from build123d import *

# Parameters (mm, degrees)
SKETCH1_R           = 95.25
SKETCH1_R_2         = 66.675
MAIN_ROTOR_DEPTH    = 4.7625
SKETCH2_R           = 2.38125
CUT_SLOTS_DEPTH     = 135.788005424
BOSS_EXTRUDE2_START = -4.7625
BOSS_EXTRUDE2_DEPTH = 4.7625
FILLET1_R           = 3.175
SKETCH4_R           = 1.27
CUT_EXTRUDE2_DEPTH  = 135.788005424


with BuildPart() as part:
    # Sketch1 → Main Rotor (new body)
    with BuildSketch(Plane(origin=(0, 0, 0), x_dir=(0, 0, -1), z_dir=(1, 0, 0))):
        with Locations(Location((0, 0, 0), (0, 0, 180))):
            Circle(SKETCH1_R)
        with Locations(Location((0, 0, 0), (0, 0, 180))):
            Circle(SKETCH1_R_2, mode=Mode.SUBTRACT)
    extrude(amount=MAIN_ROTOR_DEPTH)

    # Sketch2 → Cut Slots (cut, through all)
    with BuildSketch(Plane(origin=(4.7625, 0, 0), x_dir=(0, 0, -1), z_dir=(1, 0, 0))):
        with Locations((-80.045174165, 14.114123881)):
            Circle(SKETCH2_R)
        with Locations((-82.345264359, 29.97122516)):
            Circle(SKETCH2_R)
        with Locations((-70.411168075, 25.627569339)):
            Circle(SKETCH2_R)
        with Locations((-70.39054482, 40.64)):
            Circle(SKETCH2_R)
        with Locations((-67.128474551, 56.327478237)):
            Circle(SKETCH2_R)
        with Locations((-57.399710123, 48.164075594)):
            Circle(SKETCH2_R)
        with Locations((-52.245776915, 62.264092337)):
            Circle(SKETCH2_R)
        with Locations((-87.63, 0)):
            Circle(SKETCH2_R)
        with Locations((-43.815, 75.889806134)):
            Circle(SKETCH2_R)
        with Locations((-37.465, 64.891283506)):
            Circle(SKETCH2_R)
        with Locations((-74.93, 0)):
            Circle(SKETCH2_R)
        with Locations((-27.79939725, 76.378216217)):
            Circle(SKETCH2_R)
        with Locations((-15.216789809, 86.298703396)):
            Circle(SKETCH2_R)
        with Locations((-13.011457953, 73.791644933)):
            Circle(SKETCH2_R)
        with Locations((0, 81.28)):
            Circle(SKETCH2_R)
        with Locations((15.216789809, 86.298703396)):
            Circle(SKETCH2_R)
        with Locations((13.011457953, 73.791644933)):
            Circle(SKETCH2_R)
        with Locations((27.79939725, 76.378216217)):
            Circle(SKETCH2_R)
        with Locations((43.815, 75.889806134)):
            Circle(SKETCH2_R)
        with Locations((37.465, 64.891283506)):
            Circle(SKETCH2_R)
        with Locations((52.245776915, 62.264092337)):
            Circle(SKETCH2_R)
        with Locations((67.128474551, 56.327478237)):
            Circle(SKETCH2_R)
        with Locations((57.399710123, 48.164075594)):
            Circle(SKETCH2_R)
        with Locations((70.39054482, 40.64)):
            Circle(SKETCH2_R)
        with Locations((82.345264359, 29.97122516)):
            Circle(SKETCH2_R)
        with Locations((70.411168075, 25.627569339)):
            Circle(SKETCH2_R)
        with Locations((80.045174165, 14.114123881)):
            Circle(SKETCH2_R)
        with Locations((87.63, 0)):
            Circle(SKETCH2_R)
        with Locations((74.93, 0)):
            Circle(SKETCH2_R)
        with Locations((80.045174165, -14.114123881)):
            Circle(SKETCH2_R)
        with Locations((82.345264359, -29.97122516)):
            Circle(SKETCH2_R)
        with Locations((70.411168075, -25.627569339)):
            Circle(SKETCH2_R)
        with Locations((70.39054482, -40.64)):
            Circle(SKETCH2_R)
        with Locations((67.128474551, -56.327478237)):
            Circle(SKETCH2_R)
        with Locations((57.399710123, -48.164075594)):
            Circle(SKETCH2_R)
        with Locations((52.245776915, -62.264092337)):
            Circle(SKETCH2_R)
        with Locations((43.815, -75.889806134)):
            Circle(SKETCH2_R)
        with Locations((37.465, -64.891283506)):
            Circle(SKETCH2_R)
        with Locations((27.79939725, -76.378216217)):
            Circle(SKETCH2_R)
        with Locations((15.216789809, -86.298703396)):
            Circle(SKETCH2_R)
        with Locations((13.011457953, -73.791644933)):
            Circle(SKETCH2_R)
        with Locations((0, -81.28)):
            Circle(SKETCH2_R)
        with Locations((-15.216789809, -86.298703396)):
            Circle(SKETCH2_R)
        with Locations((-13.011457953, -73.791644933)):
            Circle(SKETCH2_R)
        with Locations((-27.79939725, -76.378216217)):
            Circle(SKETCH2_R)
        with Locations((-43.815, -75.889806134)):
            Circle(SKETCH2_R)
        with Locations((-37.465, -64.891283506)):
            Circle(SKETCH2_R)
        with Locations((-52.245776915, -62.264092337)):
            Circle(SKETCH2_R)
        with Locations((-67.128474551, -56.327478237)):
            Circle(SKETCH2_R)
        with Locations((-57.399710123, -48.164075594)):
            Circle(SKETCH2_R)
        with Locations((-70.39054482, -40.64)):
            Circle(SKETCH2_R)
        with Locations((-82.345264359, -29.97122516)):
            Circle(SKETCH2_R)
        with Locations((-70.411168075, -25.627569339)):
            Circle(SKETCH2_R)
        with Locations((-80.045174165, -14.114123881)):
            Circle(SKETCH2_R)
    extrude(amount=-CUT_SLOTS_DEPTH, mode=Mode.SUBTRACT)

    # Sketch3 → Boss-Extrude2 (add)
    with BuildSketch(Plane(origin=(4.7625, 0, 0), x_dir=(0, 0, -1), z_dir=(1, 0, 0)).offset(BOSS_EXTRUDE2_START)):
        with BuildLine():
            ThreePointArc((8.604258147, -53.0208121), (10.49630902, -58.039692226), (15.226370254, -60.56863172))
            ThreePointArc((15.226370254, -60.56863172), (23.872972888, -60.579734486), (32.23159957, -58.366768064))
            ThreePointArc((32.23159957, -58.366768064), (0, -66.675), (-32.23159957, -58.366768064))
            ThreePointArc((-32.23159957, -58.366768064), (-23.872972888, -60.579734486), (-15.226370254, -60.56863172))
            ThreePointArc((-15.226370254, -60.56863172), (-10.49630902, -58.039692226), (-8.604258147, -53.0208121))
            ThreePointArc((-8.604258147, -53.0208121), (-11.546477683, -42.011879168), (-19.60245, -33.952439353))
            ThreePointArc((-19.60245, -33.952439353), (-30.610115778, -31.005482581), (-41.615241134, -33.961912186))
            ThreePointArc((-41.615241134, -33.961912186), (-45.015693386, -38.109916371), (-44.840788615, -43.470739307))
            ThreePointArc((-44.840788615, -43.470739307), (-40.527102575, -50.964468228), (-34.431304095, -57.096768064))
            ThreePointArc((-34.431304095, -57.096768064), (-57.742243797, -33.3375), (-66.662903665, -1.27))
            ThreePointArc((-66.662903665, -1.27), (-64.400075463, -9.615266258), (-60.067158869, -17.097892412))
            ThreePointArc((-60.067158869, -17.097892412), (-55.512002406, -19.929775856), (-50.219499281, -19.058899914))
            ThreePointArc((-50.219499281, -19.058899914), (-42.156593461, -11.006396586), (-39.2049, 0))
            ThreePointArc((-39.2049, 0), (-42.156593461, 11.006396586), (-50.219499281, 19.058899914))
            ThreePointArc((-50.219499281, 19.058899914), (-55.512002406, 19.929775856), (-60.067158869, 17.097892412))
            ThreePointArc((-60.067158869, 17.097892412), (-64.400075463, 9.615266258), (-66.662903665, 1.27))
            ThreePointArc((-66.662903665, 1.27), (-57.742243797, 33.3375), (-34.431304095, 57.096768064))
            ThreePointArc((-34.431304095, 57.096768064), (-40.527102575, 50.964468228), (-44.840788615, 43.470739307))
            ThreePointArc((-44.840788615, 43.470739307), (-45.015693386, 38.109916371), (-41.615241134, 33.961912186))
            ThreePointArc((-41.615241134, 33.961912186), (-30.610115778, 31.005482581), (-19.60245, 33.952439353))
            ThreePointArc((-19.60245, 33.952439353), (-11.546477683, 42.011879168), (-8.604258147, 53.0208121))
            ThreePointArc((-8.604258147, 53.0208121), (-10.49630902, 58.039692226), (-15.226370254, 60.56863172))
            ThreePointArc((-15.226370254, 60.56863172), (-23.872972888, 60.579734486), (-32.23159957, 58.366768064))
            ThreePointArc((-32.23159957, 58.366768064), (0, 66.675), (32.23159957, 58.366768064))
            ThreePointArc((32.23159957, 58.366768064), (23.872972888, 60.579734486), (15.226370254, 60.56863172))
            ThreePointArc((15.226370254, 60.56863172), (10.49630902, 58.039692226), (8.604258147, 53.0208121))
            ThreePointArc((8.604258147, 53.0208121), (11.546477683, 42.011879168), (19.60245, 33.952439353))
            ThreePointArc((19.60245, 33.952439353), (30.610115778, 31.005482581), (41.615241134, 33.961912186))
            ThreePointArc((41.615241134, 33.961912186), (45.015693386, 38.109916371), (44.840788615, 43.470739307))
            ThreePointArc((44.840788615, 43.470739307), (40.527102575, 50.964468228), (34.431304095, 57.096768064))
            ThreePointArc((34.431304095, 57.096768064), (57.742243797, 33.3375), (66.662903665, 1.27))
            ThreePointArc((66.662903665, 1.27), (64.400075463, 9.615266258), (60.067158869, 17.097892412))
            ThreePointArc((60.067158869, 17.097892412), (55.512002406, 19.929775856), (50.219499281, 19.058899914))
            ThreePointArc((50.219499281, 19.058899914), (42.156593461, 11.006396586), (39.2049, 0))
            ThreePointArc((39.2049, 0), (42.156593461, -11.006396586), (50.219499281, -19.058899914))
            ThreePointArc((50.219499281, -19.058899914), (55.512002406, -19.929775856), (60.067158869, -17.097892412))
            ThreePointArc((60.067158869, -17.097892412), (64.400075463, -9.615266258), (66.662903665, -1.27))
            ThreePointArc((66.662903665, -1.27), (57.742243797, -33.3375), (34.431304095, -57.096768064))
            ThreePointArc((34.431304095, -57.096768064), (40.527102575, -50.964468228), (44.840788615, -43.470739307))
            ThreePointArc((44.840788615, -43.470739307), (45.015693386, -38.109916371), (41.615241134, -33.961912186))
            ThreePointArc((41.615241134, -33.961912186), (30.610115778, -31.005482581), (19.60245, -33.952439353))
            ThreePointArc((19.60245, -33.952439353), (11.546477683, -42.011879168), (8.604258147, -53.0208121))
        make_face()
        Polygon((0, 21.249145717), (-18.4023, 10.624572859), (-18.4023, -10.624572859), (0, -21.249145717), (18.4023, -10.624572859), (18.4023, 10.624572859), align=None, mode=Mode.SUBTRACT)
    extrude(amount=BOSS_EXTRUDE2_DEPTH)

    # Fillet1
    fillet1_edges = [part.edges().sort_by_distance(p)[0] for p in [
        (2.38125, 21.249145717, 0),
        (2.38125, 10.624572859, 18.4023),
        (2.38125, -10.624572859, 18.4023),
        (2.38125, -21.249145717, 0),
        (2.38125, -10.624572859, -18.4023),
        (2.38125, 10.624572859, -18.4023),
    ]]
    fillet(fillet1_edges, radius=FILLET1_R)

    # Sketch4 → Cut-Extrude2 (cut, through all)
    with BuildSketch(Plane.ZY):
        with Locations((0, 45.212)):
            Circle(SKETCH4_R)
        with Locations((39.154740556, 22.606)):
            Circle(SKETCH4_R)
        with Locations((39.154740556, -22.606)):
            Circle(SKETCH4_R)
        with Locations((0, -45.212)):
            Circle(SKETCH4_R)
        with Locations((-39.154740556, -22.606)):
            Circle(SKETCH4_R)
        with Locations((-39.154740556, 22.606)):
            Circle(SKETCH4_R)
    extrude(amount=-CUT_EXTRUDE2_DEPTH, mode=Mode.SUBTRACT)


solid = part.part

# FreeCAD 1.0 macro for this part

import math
import FreeCAD as App
import Part
import Sketcher
Q = App.Units.Quantity


def edges_at(feature, points):
    """Names of the edges that pass closest to the given points."""
    edges = feature.Shape.Edges
    near = lambda p: min(range(len(edges)), key=lambda i: edges[i].distToShape(Part.Vertex(*p))[0])
    return sorted({f"Edge{near(p) + 1}" for p in points})


def add_polygon(sketch, points):
    """Adds a closed chain of lines whose ends are joined by coincident constraints."""
    first, n = sketch.GeometryCount, len(points)
    for a, b in zip(points, points[1:] + points[:1]):
        sketch.addGeometry(Part.LineSegment(App.Vector(*a, 0), App.Vector(*b, 0)), False)
    for i in range(n):
        sketch.addConstraint(Sketcher.Constraint("Coincident", first + i, 2, first + (i + 1) % n, 1))

doc = App.newDocument("Part")
body = doc.addObject("PartDesign::Body", "Body")

sketch1 = doc.addObject("Sketcher::SketchObject", "Sketch")
body.addObject(sketch1)
sketch1.AttachmentSupport = (doc.YZ_Plane, [""])
sketch1.MapMode = "FlatFace"
sketch1.addGeometry([
    Part.Circle(App.Vector(0, 0, 0), App.Vector(0, 0, 1), 95),
    Part.Circle(App.Vector(0, 0, 0), App.Vector(0, 0, 1), 67),
], False)
sketch1.addConstraint([
    Sketcher.Constraint("Coincident", 0, 3, -1, 1),
    Sketcher.Constraint("Coincident", 1, 3, -1, 1),
    Sketcher.Constraint("Diameter", 0, Q("7.5 in")),
    Sketcher.Constraint("Diameter", 1, Q("5.25 in")),
])
pad1 = doc.addObject("PartDesign::Pad", "Pad")
body.addObject(pad1)
pad1.Profile = sketch1
pad1.Length = Q("0.1875 in")

sketch2 = doc.addObject("Sketcher::SketchObject", "Sketch001")
body.addObject(sketch2)
sketch2.AttachmentSupport = (doc.YZ_Plane, [""])
sketch2.MapMode = "FlatFace"
sketch2.AttachmentOffset = App.Placement(App.Vector(0, 0, 0.1875 * 25.4), App.Rotation())
sketch2.addGeometry([
    Part.Circle(App.Vector(14.1, 80, 0), App.Vector(0, 0, 1), 2.4),
    Part.Circle(App.Vector(30, 82.3, 0), App.Vector(0, 0, 1), 2.4),
    Part.Circle(App.Vector(25.6, 70.4, 0), App.Vector(0, 0, 1), 2.4),
    Part.Circle(App.Vector(40.6, 70.4, 0), App.Vector(0, 0, 1), 2.4),
    Part.Circle(App.Vector(56.3, 67.1, 0), App.Vector(0, 0, 1), 2.4),
    Part.Circle(App.Vector(48.2, 57.4, 0), App.Vector(0, 0, 1), 2.4),
    Part.Circle(App.Vector(62.3, 52.2, 0), App.Vector(0, 0, 1), 2.4),
    Part.Circle(App.Vector(0, 87.6, 0), App.Vector(0, 0, 1), 2.4),
    Part.Circle(App.Vector(75.9, 43.8, 0), App.Vector(0, 0, 1), 2.4),
    Part.Circle(App.Vector(64.9, 37.5, 0), App.Vector(0, 0, 1), 2.4),
    Part.Circle(App.Vector(0, 74.9, 0), App.Vector(0, 0, 1), 2.4),
    Part.Circle(App.Vector(76.4, 27.8, 0), App.Vector(0, 0, 1), 2.4),
    Part.Circle(App.Vector(86.3, 15.2, 0), App.Vector(0, 0, 1), 2.4),
    Part.Circle(App.Vector(73.8, 13, 0), App.Vector(0, 0, 1), 2.4),
    Part.Circle(App.Vector(81.3, 0, 0), App.Vector(0, 0, 1), 2.4),
    Part.Circle(App.Vector(86.3, -15.2, 0), App.Vector(0, 0, 1), 2.4),
    Part.Circle(App.Vector(73.8, -13, 0), App.Vector(0, 0, 1), 2.4),
    Part.Circle(App.Vector(76.4, -27.8, 0), App.Vector(0, 0, 1), 2.4),
    Part.Circle(App.Vector(75.9, -43.8, 0), App.Vector(0, 0, 1), 2.4),
    Part.Circle(App.Vector(64.9, -37.5, 0), App.Vector(0, 0, 1), 2.4),
    Part.Circle(App.Vector(62.3, -52.2, 0), App.Vector(0, 0, 1), 2.4),
    Part.Circle(App.Vector(56.3, -67.1, 0), App.Vector(0, 0, 1), 2.4),
    Part.Circle(App.Vector(48.2, -57.4, 0), App.Vector(0, 0, 1), 2.4),
    Part.Circle(App.Vector(40.6, -70.4, 0), App.Vector(0, 0, 1), 2.4),
    Part.Circle(App.Vector(30, -82.3, 0), App.Vector(0, 0, 1), 2.4),
    Part.Circle(App.Vector(25.6, -70.4, 0), App.Vector(0, 0, 1), 2.4),
    Part.Circle(App.Vector(14.1, -80, 0), App.Vector(0, 0, 1), 2.4),
    Part.Circle(App.Vector(0, -87.6, 0), App.Vector(0, 0, 1), 2.4),
    Part.Circle(App.Vector(0, -74.9, 0), App.Vector(0, 0, 1), 2.4),
    Part.Circle(App.Vector(-14.1, -80, 0), App.Vector(0, 0, 1), 2.4),
    Part.Circle(App.Vector(-30, -82.3, 0), App.Vector(0, 0, 1), 2.4),
    Part.Circle(App.Vector(-25.6, -70.4, 0), App.Vector(0, 0, 1), 2.4),
    Part.Circle(App.Vector(-40.6, -70.4, 0), App.Vector(0, 0, 1), 2.4),
    Part.Circle(App.Vector(-56.3, -67.1, 0), App.Vector(0, 0, 1), 2.4),
    Part.Circle(App.Vector(-48.2, -57.4, 0), App.Vector(0, 0, 1), 2.4),
    Part.Circle(App.Vector(-62.3, -52.2, 0), App.Vector(0, 0, 1), 2.4),
    Part.Circle(App.Vector(-75.9, -43.8, 0), App.Vector(0, 0, 1), 2.4),
    Part.Circle(App.Vector(-64.9, -37.5, 0), App.Vector(0, 0, 1), 2.4),
    Part.Circle(App.Vector(-76.4, -27.8, 0), App.Vector(0, 0, 1), 2.4),
    Part.Circle(App.Vector(-86.3, -15.2, 0), App.Vector(0, 0, 1), 2.4),
    Part.Circle(App.Vector(-73.8, -13, 0), App.Vector(0, 0, 1), 2.4),
    Part.Circle(App.Vector(-81.3, 0, 0), App.Vector(0, 0, 1), 2.4),
    Part.Circle(App.Vector(-86.3, 15.2, 0), App.Vector(0, 0, 1), 2.4),
    Part.Circle(App.Vector(-73.8, 13, 0), App.Vector(0, 0, 1), 2.4),
    Part.Circle(App.Vector(-76.4, 27.8, 0), App.Vector(0, 0, 1), 2.4),
    Part.Circle(App.Vector(-75.9, 43.8, 0), App.Vector(0, 0, 1), 2.4),
    Part.Circle(App.Vector(-64.9, 37.5, 0), App.Vector(0, 0, 1), 2.4),
    Part.Circle(App.Vector(-62.3, 52.2, 0), App.Vector(0, 0, 1), 2.4),
    Part.Circle(App.Vector(-56.3, 67.1, 0), App.Vector(0, 0, 1), 2.4),
    Part.Circle(App.Vector(-48.2, 57.4, 0), App.Vector(0, 0, 1), 2.4),
    Part.Circle(App.Vector(-40.6, 70.4, 0), App.Vector(0, 0, 1), 2.4),
    Part.Circle(App.Vector(-30, 82.3, 0), App.Vector(0, 0, 1), 2.4),
    Part.Circle(App.Vector(-25.6, 70.4, 0), App.Vector(0, 0, 1), 2.4),
    Part.Circle(App.Vector(-14.1, 80, 0), App.Vector(0, 0, 1), 2.4),
], False)
sketch2.addConstraint([
    Sketcher.Constraint("Equal", 0, 1),
    Sketcher.Constraint("Equal", 1, 2),
    Sketcher.Constraint("Equal", 2, 3),
    Sketcher.Constraint("Equal", 3, 4),
    Sketcher.Constraint("Equal", 4, 5),
    Sketcher.Constraint("Equal", 5, 6),
    Sketcher.Constraint("Equal", 6, 7),
    Sketcher.Constraint("Equal", 7, 8),
    Sketcher.Constraint("Equal", 8, 9),
    Sketcher.Constraint("Equal", 9, 10),
    Sketcher.Constraint("Equal", 10, 11),
    Sketcher.Constraint("Equal", 11, 12),
    Sketcher.Constraint("Equal", 12, 13),
    Sketcher.Constraint("Equal", 13, 14),
    Sketcher.Constraint("Equal", 14, 15),
    Sketcher.Constraint("Equal", 15, 16),
    Sketcher.Constraint("Equal", 16, 17),
    Sketcher.Constraint("Equal", 17, 18),
    Sketcher.Constraint("Equal", 18, 19),
    Sketcher.Constraint("Equal", 19, 20),
    Sketcher.Constraint("Equal", 20, 21),
    Sketcher.Constraint("Equal", 21, 22),
    Sketcher.Constraint("Equal", 22, 23),
    Sketcher.Constraint("Equal", 23, 24),
    Sketcher.Constraint("Equal", 24, 25),
    Sketcher.Constraint("Equal", 25, 26),
    Sketcher.Constraint("Equal", 26, 27),
    Sketcher.Constraint("Equal", 27, 28),
    Sketcher.Constraint("Equal", 28, 29),
    Sketcher.Constraint("Equal", 29, 30),
    Sketcher.Constraint("Equal", 30, 31),
    Sketcher.Constraint("Equal", 31, 32),
    Sketcher.Constraint("Equal", 32, 33),
    Sketcher.Constraint("Equal", 33, 34),
    Sketcher.Constraint("Equal", 34, 35),
    Sketcher.Constraint("Equal", 35, 36),
    Sketcher.Constraint("Equal", 36, 37),
    Sketcher.Constraint("Equal", 37, 38),
    Sketcher.Constraint("Equal", 38, 39),
    Sketcher.Constraint("Equal", 39, 40),
    Sketcher.Constraint("Equal", 40, 41),
    Sketcher.Constraint("Equal", 41, 42),
    Sketcher.Constraint("Equal", 42, 43),
    Sketcher.Constraint("Equal", 43, 44),
    Sketcher.Constraint("Equal", 44, 45),
    Sketcher.Constraint("Equal", 45, 46),
    Sketcher.Constraint("Equal", 46, 47),
    Sketcher.Constraint("Equal", 47, 48),
    Sketcher.Constraint("Equal", 48, 49),
    Sketcher.Constraint("Equal", 49, 50),
    Sketcher.Constraint("Equal", 50, 51),
    Sketcher.Constraint("Equal", 51, 52),
    Sketcher.Constraint("Equal", 52, 53),
    Sketcher.Constraint("Symmetric", 7, 3, 27, 3, -1, 1),
    Sketcher.Constraint("Symmetric", 10, 3, 28, 3, -1, 1),
    Sketcher.Constraint("Symmetric", 0, 3, 29, 3, -1, 1),
    Sketcher.Constraint("Symmetric", 1, 3, 30, 3, -1, 1),
    Sketcher.Constraint("Symmetric", 2, 3, 31, 3, -1, 1),
    Sketcher.Constraint("Symmetric", 3, 3, 32, 3, -1, 1),
    Sketcher.Constraint("Symmetric", 4, 3, 33, 3, -1, 1),
    Sketcher.Constraint("Symmetric", 5, 3, 34, 3, -1, 1),
    Sketcher.Constraint("Symmetric", 6, 3, 35, 3, -1, 1),
    Sketcher.Constraint("Symmetric", 8, 3, 36, 3, -1, 1),
    Sketcher.Constraint("Symmetric", 9, 3, 37, 3, -1, 1),
    Sketcher.Constraint("Symmetric", 11, 3, 38, 3, -1, 1),
    Sketcher.Constraint("Symmetric", 12, 3, 39, 3, -1, 1),
    Sketcher.Constraint("Symmetric", 13, 3, 40, 3, -1, 1),
    Sketcher.Constraint("Symmetric", 14, 3, 41, 3, -1, 1),
    Sketcher.Constraint("Symmetric", 15, 3, 42, 3, -1, 1),
    Sketcher.Constraint("Symmetric", 16, 3, 43, 3, -1, 1),
    Sketcher.Constraint("Symmetric", 17, 3, 44, 3, -1, 1),
    Sketcher.Constraint("Symmetric", 18, 3, 45, 3, -1, 1),
    Sketcher.Constraint("Symmetric", 19, 3, 46, 3, -1, 1),
    Sketcher.Constraint("Symmetric", 20, 3, 47, 3, -1, 1),
    Sketcher.Constraint("Symmetric", 21, 3, 48, 3, -1, 1),
    Sketcher.Constraint("Symmetric", 22, 3, 49, 3, -1, 1),
    Sketcher.Constraint("Symmetric", 23, 3, 50, 3, -1, 1),
    Sketcher.Constraint("Symmetric", 24, 3, 51, 3, -1, 1),
    Sketcher.Constraint("Symmetric", 25, 3, 52, 3, -1, 1),
    Sketcher.Constraint("Symmetric", 26, 3, 53, 3, -1, 1),
    Sketcher.Constraint("Symmetric", 26, 3, 29, 3, -2),
    Sketcher.Constraint("Symmetric", 24, 3, 30, 3, -2),
    Sketcher.Constraint("Symmetric", 25, 3, 31, 3, -2),
    Sketcher.Constraint("Symmetric", 23, 3, 32, 3, -2),
    Sketcher.Constraint("Symmetric", 21, 3, 33, 3, -2),
    Sketcher.Constraint("Symmetric", 22, 3, 34, 3, -2),
    Sketcher.Constraint("Symmetric", 20, 3, 35, 3, -2),
    Sketcher.Constraint("Symmetric", 18, 3, 36, 3, -2),
    Sketcher.Constraint("Symmetric", 19, 3, 37, 3, -2),
    Sketcher.Constraint("Symmetric", 17, 3, 38, 3, -2),
    Sketcher.Constraint("Symmetric", 15, 3, 39, 3, -2),
    Sketcher.Constraint("Symmetric", 16, 3, 40, 3, -2),
    Sketcher.Constraint("PointOnObject", 7, 3, -2),
    Sketcher.Constraint("PointOnObject", 10, 3, -2),
    Sketcher.Constraint("PointOnObject", 14, 3, -1),
    Sketcher.Constraint("Diameter", 0, Q("0.1875 in")),
    Sketcher.Constraint("DistanceX", -1, 1, 3, 3, Q("1.6 in")),
    Sketcher.Constraint("DistanceX", -1, 1, 14, 3, Q("3.2 in")),
    Sketcher.Constraint("DistanceY", 10, 3, 7, 3, Q("0.5 in")),
    Sketcher.Constraint("DistanceY", -1, 1, 7, 3, Q("3.45 in")),
    Sketcher.Constraint("DistanceY", 9, 3, 8, 3, Q("0.25 in")),
    Sketcher.Constraint("DistanceY", -1, 1, 8, 3, Q("1.725 in")),
    Sketcher.Constraint("DistanceX", 0, 3, 1, 3, Q("15.857101 mm")),
    Sketcher.Constraint("DistanceY", 4, 3, 0, 3, Q("12.9167 mm")),
    Sketcher.Constraint("DistanceX", -1, 1, 2, 3, Q("25.627569 mm")),
    Sketcher.Constraint("DistanceY", -1, 1, 2, 3, Q("70.411168 mm")),
    Sketcher.Constraint("DistanceX", -1, 1, 4, 3, Q("56.327478 mm")),
    Sketcher.Constraint("DistanceY", -1, 1, 5, 3, Q("57.39971 mm")),
    Sketcher.Constraint("DistanceY", -1, 1, 12, 3, Q("15.21679 mm")),
    Sketcher.Constraint("DistanceY", 0, 3, 1, 3, Q("2.30009 mm")),
    Sketcher.Constraint("DistanceY", 3, 3, 1, 3, Q("11.95472 mm")),
    Sketcher.Constraint("DistanceX", 1, 3, 5, 3, Q("18.19285 mm")),
    Sketcher.Constraint("DistanceY", 6, 3, 2, 3, Q("18.165391 mm")),
    Sketcher.Constraint("DistanceX", 5, 3, 8, 3, Q("27.725731 mm")),
    Sketcher.Constraint("DistanceX", 6, 3, 9, 3, Q("2.627191 mm")),
    Sketcher.Constraint("DistanceX", 8, 3, 11, 3, Q("0.48841 mm")),
    Sketcher.Constraint("DistanceY", 11, 3, 6, 3, Q("24.44638 mm")),
    Sketcher.Constraint("DistanceX", 9, 3, 12, 3, Q("21.40742 mm")),
    Sketcher.Constraint("DistanceX", 13, 3, 12, 3, Q("12.507058 mm")),
    Sketcher.Constraint("DistanceY", 13, 3, 12, 3, Q("2.205332 mm")),
    Sketcher.Constraint("DistanceX", 13, 3, 11, 3, Q("2.586571 mm")),
    Sketcher.Constraint("DistanceX", 29, 3, 24, 3, Q("44.085349 mm")),
    Sketcher.Constraint("DistanceY", -1, 1, 0, 3, Q("80.045174 mm")),
])
pocket1 = doc.addObject("PartDesign::Pocket", "Pocket")
body.addObject(pocket1)
pocket1.Profile = sketch2
pocket1.Type = "ThroughAll"

sketch3 = doc.addObject("Sketcher::SketchObject", "Sketch002")
body.addObject(sketch3)
sketch3.AttachmentSupport = (doc.YZ_Plane, [""])
sketch3.MapMode = "FlatFace"
sketch3.addGeometry(Part.ArcOfCircle(Part.Circle(App.Vector(-53, -16, 0), App.Vector(0, 0, 1), 8), math.radians(90), math.radians(172)), False)
sketch3.addGeometry(Part.ArcOfCircle(Part.Circle(App.Vector(-53, -31, 0), App.Vector(0, 0, 1), 22), math.radians(30), math.radians(90)), False)
sketch3.addGeometry(Part.ArcOfCircle(Part.Circle(App.Vector(-53, -31, 0), App.Vector(0, 0, 1), 22), math.radians(-30), math.radians(30)), False)
sketch3.addGeometry(Part.ArcOfCircle(Part.Circle(App.Vector(-41, -38, 0), App.Vector(0, 0, 1), 8), math.radians(-112), math.radians(-30)), False)
sketch3.addGeometry(Part.ArcOfCircle(Part.Circle(App.Vector(-31, -14, 0), App.Vector(0, 0, 1), 33), math.radians(-142), math.radians(-112)), False)
sketch3.addGeometry(Part.ArcOfCircle(Part.Circle(App.Vector(0, 0, 0), App.Vector(0, 0, 1), 67), math.radians(-149), math.radians(-91)), False)
sketch3.addGeometry(Part.ArcOfCircle(Part.Circle(App.Vector(3, -34, 0), App.Vector(0, 0, 1), 33), math.radians(-128), math.radians(-98)), False)
sketch3.addGeometry(Part.ArcOfCircle(Part.Circle(App.Vector(-12, -54, 0), App.Vector(0, 0, 1), 8), math.radians(150), math.radians(232)), False)
sketch3.addGeometry(Part.ArcOfCircle(Part.Circle(App.Vector(0, -61, 0), App.Vector(0, 0, 1), 22), math.radians(90), math.radians(150)), False)
sketch3.addGeometry(Part.ArcOfCircle(Part.Circle(App.Vector(0, -61, 0), App.Vector(0, 0, 1), 22), math.radians(30), math.radians(90)), False)
sketch3.addGeometry(Part.ArcOfCircle(Part.Circle(App.Vector(12, -54, 0), App.Vector(0, 0, 1), 8), math.radians(-52), math.radians(30)), False)
sketch3.addGeometry(Part.ArcOfCircle(Part.Circle(App.Vector(-3, -34, 0), App.Vector(0, 0, 1), 33), math.radians(-82), math.radians(-52)), False)
sketch3.addGeometry(Part.ArcOfCircle(Part.Circle(App.Vector(0, 0, 0), App.Vector(0, 0, 1), 67), math.radians(-89), math.radians(-31)), False)
sketch3.addGeometry(Part.ArcOfCircle(Part.Circle(App.Vector(31, -14, 0), App.Vector(0, 0, 1), 33), math.radians(-68), math.radians(-38)), False)
sketch3.addGeometry(Part.ArcOfCircle(Part.Circle(App.Vector(41, -38, 0), App.Vector(0, 0, 1), 8), math.radians(-150), math.radians(-68)), False)
sketch3.addGeometry(Part.ArcOfCircle(Part.Circle(App.Vector(53, -31, 0), App.Vector(0, 0, 1), 22), math.radians(150), math.radians(210)), False)
sketch3.addGeometry(Part.ArcOfCircle(Part.Circle(App.Vector(53, -31, 0), App.Vector(0, 0, 1), 22), math.radians(90), math.radians(150)), False)
sketch3.addGeometry(Part.ArcOfCircle(Part.Circle(App.Vector(53, -16, 0), App.Vector(0, 0, 1), 8), math.radians(8), math.radians(90)), False)
sketch3.addGeometry(Part.ArcOfCircle(Part.Circle(App.Vector(28, -20, 0), App.Vector(0, 0, 1), 33), math.radians(-22), math.radians(8)), False)
sketch3.addGeometry(Part.ArcOfCircle(Part.Circle(App.Vector(0, 0, 0), App.Vector(0, 0, 1), 67), math.radians(-29), math.radians(29)), False)
sketch3.addGeometry(Part.ArcOfCircle(Part.Circle(App.Vector(28, 20, 0), App.Vector(0, 0, 1), 33), math.radians(-8), math.radians(22)), False)
sketch3.addGeometry(Part.ArcOfCircle(Part.Circle(App.Vector(53, 16, 0), App.Vector(0, 0, 1), 8), math.radians(-90), math.radians(-8)), False)
sketch3.addGeometry(Part.ArcOfCircle(Part.Circle(App.Vector(53, 31, 0), App.Vector(0, 0, 1), 22), math.radians(-150), math.radians(-90)), False)
sketch3.addGeometry(Part.ArcOfCircle(Part.Circle(App.Vector(53, 31, 0), App.Vector(0, 0, 1), 22), math.radians(150), math.radians(210)), False)
sketch3.addGeometry(Part.ArcOfCircle(Part.Circle(App.Vector(41, 38, 0), App.Vector(0, 0, 1), 8), math.radians(68), math.radians(150)), False)
sketch3.addGeometry(Part.ArcOfCircle(Part.Circle(App.Vector(31, 14, 0), App.Vector(0, 0, 1), 33), math.radians(38), math.radians(68)), False)
sketch3.addGeometry(Part.ArcOfCircle(Part.Circle(App.Vector(0, 0, 0), App.Vector(0, 0, 1), 67), math.radians(31), math.radians(89)), False)
sketch3.addGeometry(Part.ArcOfCircle(Part.Circle(App.Vector(-3, 34, 0), App.Vector(0, 0, 1), 33), math.radians(52), math.radians(82)), False)
sketch3.addGeometry(Part.ArcOfCircle(Part.Circle(App.Vector(12, 54, 0), App.Vector(0, 0, 1), 8), math.radians(-30), math.radians(52)), False)
sketch3.addGeometry(Part.ArcOfCircle(Part.Circle(App.Vector(0, 61, 0), App.Vector(0, 0, 1), 22), math.radians(-90), math.radians(-30)), False)
sketch3.addGeometry(Part.ArcOfCircle(Part.Circle(App.Vector(0, 61, 0), App.Vector(0, 0, 1), 22), math.radians(-150), math.radians(-90)), False)
sketch3.addGeometry(Part.ArcOfCircle(Part.Circle(App.Vector(-12, 54, 0), App.Vector(0, 0, 1), 8), math.radians(128), math.radians(210)), False)
sketch3.addGeometry(Part.ArcOfCircle(Part.Circle(App.Vector(3, 34, 0), App.Vector(0, 0, 1), 33), math.radians(98), math.radians(128)), False)
sketch3.addGeometry(Part.ArcOfCircle(Part.Circle(App.Vector(0, 0, 0), App.Vector(0, 0, 1), 67), math.radians(91), math.radians(149)), False)
sketch3.addGeometry(Part.ArcOfCircle(Part.Circle(App.Vector(-31, 14, 0), App.Vector(0, 0, 1), 33), math.radians(112), math.radians(142)), False)
sketch3.addGeometry(Part.ArcOfCircle(Part.Circle(App.Vector(-41, 38, 0), App.Vector(0, 0, 1), 8), math.radians(30), math.radians(112)), False)
sketch3.addGeometry(Part.ArcOfCircle(Part.Circle(App.Vector(-53, 31, 0), App.Vector(0, 0, 1), 22), math.radians(-30), math.radians(30)), False)
sketch3.addGeometry(Part.ArcOfCircle(Part.Circle(App.Vector(-53, 31, 0), App.Vector(0, 0, 1), 22), math.radians(-90), math.radians(-30)), False)
sketch3.addGeometry(Part.ArcOfCircle(Part.Circle(App.Vector(-53, 16, 0), App.Vector(0, 0, 1), 8), math.radians(-172), math.radians(-90)), False)
sketch3.addGeometry(Part.ArcOfCircle(Part.Circle(App.Vector(-28, 20, 0), App.Vector(0, 0, 1), 33), math.radians(158), math.radians(188)), False)
sketch3.addGeometry(Part.ArcOfCircle(Part.Circle(App.Vector(0, 0, 0), App.Vector(0, 0, 1), 67), math.radians(151), math.radians(209)), False)
sketch3.addGeometry(Part.ArcOfCircle(Part.Circle(App.Vector(-28, -20, 0), App.Vector(0, 0, 1), 33), math.radians(172), math.radians(202)), False)
add_polygon(sketch3, [(21, 0), (11, -18), (-11, -18), (-21, 0), (-11, 18), (11, 18)])
sketch3.addConstraint([
    Sketcher.Constraint("Tangent", 0, 1, 1, 2),
    Sketcher.Constraint("Tangent", 1, 1, 2, 2),
    Sketcher.Constraint("Tangent", 2, 1, 3, 2),
    Sketcher.Constraint("Tangent", 3, 1, 4, 2),
    Sketcher.Constraint("Coincident", 4, 1, 5, 1),
    Sketcher.Constraint("Coincident", 5, 2, 6, 2),
    Sketcher.Constraint("Tangent", 6, 1, 7, 2),
    Sketcher.Constraint("Tangent", 7, 1, 8, 2),
    Sketcher.Constraint("Tangent", 8, 1, 9, 2),
    Sketcher.Constraint("Tangent", 9, 1, 10, 2),
    Sketcher.Constraint("Tangent", 10, 1, 11, 2),
    Sketcher.Constraint("Coincident", 11, 1, 12, 1),
    Sketcher.Constraint("Coincident", 12, 2, 13, 2),
    Sketcher.Constraint("Tangent", 13, 1, 14, 2),
    Sketcher.Constraint("Tangent", 14, 1, 15, 2),
    Sketcher.Constraint("Tangent", 15, 1, 16, 2),
    Sketcher.Constraint("Tangent", 16, 1, 17, 2),
    Sketcher.Constraint("Tangent", 17, 1, 18, 2),
    Sketcher.Constraint("Coincident", 18, 1, 19, 1),
    Sketcher.Constraint("Coincident", 19, 2, 20, 2),
    Sketcher.Constraint("Tangent", 20, 1, 21, 2),
    Sketcher.Constraint("Tangent", 21, 1, 22, 2),
    Sketcher.Constraint("Tangent", 22, 1, 23, 2),
    Sketcher.Constraint("Tangent", 23, 1, 24, 2),
    Sketcher.Constraint("Tangent", 24, 1, 25, 2),
    Sketcher.Constraint("Coincident", 25, 1, 26, 1),
    Sketcher.Constraint("Coincident", 26, 2, 27, 2),
    Sketcher.Constraint("Tangent", 27, 1, 28, 2),
    Sketcher.Constraint("Tangent", 28, 1, 29, 2),
    Sketcher.Constraint("Tangent", 29, 1, 30, 2),
    Sketcher.Constraint("Tangent", 30, 1, 31, 2),
    Sketcher.Constraint("Tangent", 31, 1, 32, 2),
    Sketcher.Constraint("Coincident", 32, 1, 33, 1),
    Sketcher.Constraint("Coincident", 33, 2, 34, 2),
    Sketcher.Constraint("Tangent", 34, 1, 35, 2),
    Sketcher.Constraint("Tangent", 35, 1, 36, 2),
    Sketcher.Constraint("Tangent", 36, 1, 37, 2),
    Sketcher.Constraint("Tangent", 37, 1, 38, 2),
    Sketcher.Constraint("Tangent", 38, 1, 39, 2),
    Sketcher.Constraint("Coincident", 39, 1, 40, 1),
    Sketcher.Constraint("Coincident", 40, 2, 41, 2),
    Sketcher.Constraint("Tangent", 41, 1, 0, 2),
    Sketcher.Constraint("Horizontal", 43),
    Sketcher.Constraint("Horizontal", 46),
    Sketcher.Constraint("Coincident", 5, 3, -1, 1),
    Sketcher.Constraint("Coincident", 12, 3, -1, 1),
    Sketcher.Constraint("Coincident", 19, 3, -1, 1),
    Sketcher.Constraint("Coincident", 26, 3, -1, 1),
    Sketcher.Constraint("Coincident", 33, 3, -1, 1),
    Sketcher.Constraint("Coincident", 40, 3, -1, 1),
    Sketcher.Constraint("Equal", 1, 2),
    Sketcher.Constraint("Equal", 0, 3),
    Sketcher.Constraint("Equal", 4, 6),
    Sketcher.Constraint("Equal", 3, 7),
    Sketcher.Constraint("Equal", 2, 8),
    Sketcher.Constraint("Equal", 8, 9),
    Sketcher.Constraint("Equal", 7, 10),
    Sketcher.Constraint("Equal", 6, 11),
    Sketcher.Constraint("Equal", 5, 12),
    Sketcher.Constraint("Equal", 11, 13),
    Sketcher.Constraint("Equal", 10, 14),
    Sketcher.Constraint("Equal", 9, 15),
    Sketcher.Constraint("Equal", 15, 16),
    Sketcher.Constraint("Equal", 14, 17),
    Sketcher.Constraint("Equal", 13, 18),
    Sketcher.Constraint("Equal", 12, 19),
    Sketcher.Constraint("Equal", 18, 20),
    Sketcher.Constraint("Equal", 17, 21),
    Sketcher.Constraint("Equal", 16, 22),
    Sketcher.Constraint("Equal", 22, 23),
    Sketcher.Constraint("Equal", 21, 24),
    Sketcher.Constraint("Equal", 20, 25),
    Sketcher.Constraint("Equal", 19, 26),
    Sketcher.Constraint("Equal", 25, 27),
    Sketcher.Constraint("Equal", 24, 28),
    Sketcher.Constraint("Equal", 23, 29),
    Sketcher.Constraint("Equal", 29, 30),
    Sketcher.Constraint("Equal", 28, 31),
    Sketcher.Constraint("Equal", 27, 32),
    Sketcher.Constraint("Equal", 26, 33),
    Sketcher.Constraint("Equal", 32, 34),
    Sketcher.Constraint("Equal", 31, 35),
    Sketcher.Constraint("Equal", 30, 36),
    Sketcher.Constraint("Equal", 36, 37),
    Sketcher.Constraint("Equal", 35, 38),
    Sketcher.Constraint("Equal", 34, 39),
    Sketcher.Constraint("Equal", 33, 40),
    Sketcher.Constraint("Equal", 39, 41),
    Sketcher.Constraint("Symmetric", 0, 3, 21, 3, -1, 1),
    Sketcher.Constraint("Symmetric", 3, 3, 24, 3, -1, 1),
    Sketcher.Constraint("Symmetric", 6, 3, 27, 3, -1, 1),
    Sketcher.Constraint("Symmetric", 8, 3, 29, 3, -1, 1),
    Sketcher.Constraint("Symmetric", 11, 3, 32, 3, -1, 1),
    Sketcher.Constraint("Symmetric", 13, 3, 34, 3, -1, 1),
    Sketcher.Constraint("Symmetric", 15, 3, 36, 3, -1, 1),
    Sketcher.Constraint("Symmetric", 18, 3, 39, 3, -1, 1),
    Sketcher.Constraint("Symmetric", 42, 2, 45, 2, -1, 1),
    Sketcher.Constraint("Symmetric", 44, 2, 47, 2, -1, 1),
    Sketcher.Constraint("Symmetric", 7, 3, 10, 3, -2),
    Sketcher.Constraint("Symmetric", 4, 3, 13, 3, -2),
    Sketcher.Constraint("Symmetric", 1, 3, 15, 3, -2),
    Sketcher.Constraint("Symmetric", 20, 3, 39, 3, -2),
    Sketcher.Constraint("PointOnObject", 8, 1, -2),
    Sketcher.Constraint("PointOnObject", 29, 1, -2),
    Sketcher.Constraint("PointOnObject", 44, 2, -1),
    Sketcher.Constraint("Parallel", 44, 47),
    Sketcher.Constraint("Horizontal", 6, 3, 11, 3),
    Sketcher.Constraint("Horizontal", 25, 3, 34, 3),
    Sketcher.Constraint("Horizontal", 18, 3, 41, 3),
    Sketcher.Constraint("Horizontal", 1, 1, 15, 1),
    Sketcher.Constraint("Horizontal", 22, 1, 36, 1),
    Sketcher.Constraint("Vertical", 15, 1, 22, 1),
    Sketcher.Constraint("Vertical", 43, 2, 45, 2),
    Sketcher.Constraint("Radius", 0, Q("0.3 in")),
    Sketcher.Constraint("Angle", 42, Q("-120 deg")),
    Sketcher.Constraint("Radius", 1, Q("0.866 in")),
    Sketcher.Constraint("Radius", 4, Q("1.3125 in")),
    Sketcher.Constraint("Radius", 5, Q("2.625 in")),
    Sketcher.Constraint("DistanceX", 5, 2, -1, 1, Q("0.05 in")),
    Sketcher.Constraint("DistanceY", 8, 3, -1, 1, Q("2.4095 in")),
    Sketcher.Constraint("DistanceY", 42, 2, -1, 1, Q("0.7245 in")),
    Sketcher.Constraint("DistanceX", 7, 1, -1, 1, Q("19.0589 mm")),
    Sketcher.Constraint("DistanceY", 18, 1, -1, 1, Q("32.2316 mm")),
    Sketcher.Constraint("DistanceX", 43, 2, 43, 1, Q("21.249146 mm")),
    Sketcher.Constraint("DistanceX", 1, 3, -1, 1, Q("53.001881 mm")),
    Sketcher.Constraint("DistanceY", 1, 3, -1, 1, Q("30.60065 mm")),
    Sketcher.Constraint("DistanceX", -1, 1, 18, 3, Q("27.518228 mm")),
    Sketcher.Constraint("DistanceX", 1, 1, -1, 1, Q("33.952439 mm")),
    Sketcher.Constraint("DistanceY", 2, 1, -1, 1, Q("41.615241 mm")),
    Sketcher.Constraint("DistanceX", 3, 1, -1, 1, Q("43.470739 mm")),
])
pad2 = doc.addObject("PartDesign::Pad", "Pad001")
body.addObject(pad2)
pad2.Profile = sketch3
pad2.Length = Q("0.1875 in")
doc.recompute()

fillet = doc.addObject("PartDesign::Fillet", "Fillet")
body.addObject(fillet)
fillet.Base = (pad2, edges_at(pad2, [
    (2.381, 21.249, 0),
    (2.381, 10.625, 18.402),
    (2.381, -10.625, 18.402),
    (2.381, -21.249, 0),
    (2.381, -10.625, -18.402),
    (2.381, 10.625, -18.402),
]))
fillet.Radius = Q("0.125 in")

sketch4 = doc.addObject("Sketcher::SketchObject", "Sketch003")
body.addObject(sketch4)
sketch4.AttachmentSupport = (doc.YZ_Plane, [""])
sketch4.MapMode = "FlatFace"
sketch4.addGeometry([
    Part.Circle(App.Vector(45.2, 0, 0), App.Vector(0, 0, 1), 1.3),
    Part.Circle(App.Vector(22.6, 39.2, 0), App.Vector(0, 0, 1), 1.3),
    Part.Circle(App.Vector(-22.6, 39.2, 0), App.Vector(0, 0, 1), 1.3),
    Part.Circle(App.Vector(-45.2, 0, 0), App.Vector(0, 0, 1), 1.3),
    Part.Circle(App.Vector(-22.6, -39.2, 0), App.Vector(0, 0, 1), 1.3),
    Part.Circle(App.Vector(22.6, -39.2, 0), App.Vector(0, 0, 1), 1.3),
], False)
sketch4.addConstraint([
    Sketcher.Constraint("Equal", 0, 1),
    Sketcher.Constraint("Equal", 1, 2),
    Sketcher.Constraint("Equal", 2, 3),
    Sketcher.Constraint("Equal", 3, 4),
    Sketcher.Constraint("Equal", 4, 5),
    Sketcher.Constraint("Symmetric", 0, 3, 3, 3, -1, 1),
    Sketcher.Constraint("Symmetric", 1, 3, 4, 3, -1, 1),
    Sketcher.Constraint("Symmetric", 2, 3, 5, 3, -1, 1),
    Sketcher.Constraint("Symmetric", 1, 3, 2, 3, -2),
    Sketcher.Constraint("PointOnObject", 0, 3, -1),
    Sketcher.Constraint("Diameter", 0, Q("0.1 in")),
    Sketcher.Constraint("DistanceX", -1, 1, 0, 3, Q("1.78 in")),
    Sketcher.Constraint("DistanceX", -1, 1, 1, 3, Q("0.89 in")),
    Sketcher.Constraint("DistanceY", -1, 1, 1, 3, Q("39.154741 mm")),
])
pocket2 = doc.addObject("PartDesign::Pocket", "Pocket001")
body.addObject(pocket2)
pocket2.Profile = sketch4
pocket2.Type = "ThroughAll"
pocket2.Reversed = True

doc.recompute()
